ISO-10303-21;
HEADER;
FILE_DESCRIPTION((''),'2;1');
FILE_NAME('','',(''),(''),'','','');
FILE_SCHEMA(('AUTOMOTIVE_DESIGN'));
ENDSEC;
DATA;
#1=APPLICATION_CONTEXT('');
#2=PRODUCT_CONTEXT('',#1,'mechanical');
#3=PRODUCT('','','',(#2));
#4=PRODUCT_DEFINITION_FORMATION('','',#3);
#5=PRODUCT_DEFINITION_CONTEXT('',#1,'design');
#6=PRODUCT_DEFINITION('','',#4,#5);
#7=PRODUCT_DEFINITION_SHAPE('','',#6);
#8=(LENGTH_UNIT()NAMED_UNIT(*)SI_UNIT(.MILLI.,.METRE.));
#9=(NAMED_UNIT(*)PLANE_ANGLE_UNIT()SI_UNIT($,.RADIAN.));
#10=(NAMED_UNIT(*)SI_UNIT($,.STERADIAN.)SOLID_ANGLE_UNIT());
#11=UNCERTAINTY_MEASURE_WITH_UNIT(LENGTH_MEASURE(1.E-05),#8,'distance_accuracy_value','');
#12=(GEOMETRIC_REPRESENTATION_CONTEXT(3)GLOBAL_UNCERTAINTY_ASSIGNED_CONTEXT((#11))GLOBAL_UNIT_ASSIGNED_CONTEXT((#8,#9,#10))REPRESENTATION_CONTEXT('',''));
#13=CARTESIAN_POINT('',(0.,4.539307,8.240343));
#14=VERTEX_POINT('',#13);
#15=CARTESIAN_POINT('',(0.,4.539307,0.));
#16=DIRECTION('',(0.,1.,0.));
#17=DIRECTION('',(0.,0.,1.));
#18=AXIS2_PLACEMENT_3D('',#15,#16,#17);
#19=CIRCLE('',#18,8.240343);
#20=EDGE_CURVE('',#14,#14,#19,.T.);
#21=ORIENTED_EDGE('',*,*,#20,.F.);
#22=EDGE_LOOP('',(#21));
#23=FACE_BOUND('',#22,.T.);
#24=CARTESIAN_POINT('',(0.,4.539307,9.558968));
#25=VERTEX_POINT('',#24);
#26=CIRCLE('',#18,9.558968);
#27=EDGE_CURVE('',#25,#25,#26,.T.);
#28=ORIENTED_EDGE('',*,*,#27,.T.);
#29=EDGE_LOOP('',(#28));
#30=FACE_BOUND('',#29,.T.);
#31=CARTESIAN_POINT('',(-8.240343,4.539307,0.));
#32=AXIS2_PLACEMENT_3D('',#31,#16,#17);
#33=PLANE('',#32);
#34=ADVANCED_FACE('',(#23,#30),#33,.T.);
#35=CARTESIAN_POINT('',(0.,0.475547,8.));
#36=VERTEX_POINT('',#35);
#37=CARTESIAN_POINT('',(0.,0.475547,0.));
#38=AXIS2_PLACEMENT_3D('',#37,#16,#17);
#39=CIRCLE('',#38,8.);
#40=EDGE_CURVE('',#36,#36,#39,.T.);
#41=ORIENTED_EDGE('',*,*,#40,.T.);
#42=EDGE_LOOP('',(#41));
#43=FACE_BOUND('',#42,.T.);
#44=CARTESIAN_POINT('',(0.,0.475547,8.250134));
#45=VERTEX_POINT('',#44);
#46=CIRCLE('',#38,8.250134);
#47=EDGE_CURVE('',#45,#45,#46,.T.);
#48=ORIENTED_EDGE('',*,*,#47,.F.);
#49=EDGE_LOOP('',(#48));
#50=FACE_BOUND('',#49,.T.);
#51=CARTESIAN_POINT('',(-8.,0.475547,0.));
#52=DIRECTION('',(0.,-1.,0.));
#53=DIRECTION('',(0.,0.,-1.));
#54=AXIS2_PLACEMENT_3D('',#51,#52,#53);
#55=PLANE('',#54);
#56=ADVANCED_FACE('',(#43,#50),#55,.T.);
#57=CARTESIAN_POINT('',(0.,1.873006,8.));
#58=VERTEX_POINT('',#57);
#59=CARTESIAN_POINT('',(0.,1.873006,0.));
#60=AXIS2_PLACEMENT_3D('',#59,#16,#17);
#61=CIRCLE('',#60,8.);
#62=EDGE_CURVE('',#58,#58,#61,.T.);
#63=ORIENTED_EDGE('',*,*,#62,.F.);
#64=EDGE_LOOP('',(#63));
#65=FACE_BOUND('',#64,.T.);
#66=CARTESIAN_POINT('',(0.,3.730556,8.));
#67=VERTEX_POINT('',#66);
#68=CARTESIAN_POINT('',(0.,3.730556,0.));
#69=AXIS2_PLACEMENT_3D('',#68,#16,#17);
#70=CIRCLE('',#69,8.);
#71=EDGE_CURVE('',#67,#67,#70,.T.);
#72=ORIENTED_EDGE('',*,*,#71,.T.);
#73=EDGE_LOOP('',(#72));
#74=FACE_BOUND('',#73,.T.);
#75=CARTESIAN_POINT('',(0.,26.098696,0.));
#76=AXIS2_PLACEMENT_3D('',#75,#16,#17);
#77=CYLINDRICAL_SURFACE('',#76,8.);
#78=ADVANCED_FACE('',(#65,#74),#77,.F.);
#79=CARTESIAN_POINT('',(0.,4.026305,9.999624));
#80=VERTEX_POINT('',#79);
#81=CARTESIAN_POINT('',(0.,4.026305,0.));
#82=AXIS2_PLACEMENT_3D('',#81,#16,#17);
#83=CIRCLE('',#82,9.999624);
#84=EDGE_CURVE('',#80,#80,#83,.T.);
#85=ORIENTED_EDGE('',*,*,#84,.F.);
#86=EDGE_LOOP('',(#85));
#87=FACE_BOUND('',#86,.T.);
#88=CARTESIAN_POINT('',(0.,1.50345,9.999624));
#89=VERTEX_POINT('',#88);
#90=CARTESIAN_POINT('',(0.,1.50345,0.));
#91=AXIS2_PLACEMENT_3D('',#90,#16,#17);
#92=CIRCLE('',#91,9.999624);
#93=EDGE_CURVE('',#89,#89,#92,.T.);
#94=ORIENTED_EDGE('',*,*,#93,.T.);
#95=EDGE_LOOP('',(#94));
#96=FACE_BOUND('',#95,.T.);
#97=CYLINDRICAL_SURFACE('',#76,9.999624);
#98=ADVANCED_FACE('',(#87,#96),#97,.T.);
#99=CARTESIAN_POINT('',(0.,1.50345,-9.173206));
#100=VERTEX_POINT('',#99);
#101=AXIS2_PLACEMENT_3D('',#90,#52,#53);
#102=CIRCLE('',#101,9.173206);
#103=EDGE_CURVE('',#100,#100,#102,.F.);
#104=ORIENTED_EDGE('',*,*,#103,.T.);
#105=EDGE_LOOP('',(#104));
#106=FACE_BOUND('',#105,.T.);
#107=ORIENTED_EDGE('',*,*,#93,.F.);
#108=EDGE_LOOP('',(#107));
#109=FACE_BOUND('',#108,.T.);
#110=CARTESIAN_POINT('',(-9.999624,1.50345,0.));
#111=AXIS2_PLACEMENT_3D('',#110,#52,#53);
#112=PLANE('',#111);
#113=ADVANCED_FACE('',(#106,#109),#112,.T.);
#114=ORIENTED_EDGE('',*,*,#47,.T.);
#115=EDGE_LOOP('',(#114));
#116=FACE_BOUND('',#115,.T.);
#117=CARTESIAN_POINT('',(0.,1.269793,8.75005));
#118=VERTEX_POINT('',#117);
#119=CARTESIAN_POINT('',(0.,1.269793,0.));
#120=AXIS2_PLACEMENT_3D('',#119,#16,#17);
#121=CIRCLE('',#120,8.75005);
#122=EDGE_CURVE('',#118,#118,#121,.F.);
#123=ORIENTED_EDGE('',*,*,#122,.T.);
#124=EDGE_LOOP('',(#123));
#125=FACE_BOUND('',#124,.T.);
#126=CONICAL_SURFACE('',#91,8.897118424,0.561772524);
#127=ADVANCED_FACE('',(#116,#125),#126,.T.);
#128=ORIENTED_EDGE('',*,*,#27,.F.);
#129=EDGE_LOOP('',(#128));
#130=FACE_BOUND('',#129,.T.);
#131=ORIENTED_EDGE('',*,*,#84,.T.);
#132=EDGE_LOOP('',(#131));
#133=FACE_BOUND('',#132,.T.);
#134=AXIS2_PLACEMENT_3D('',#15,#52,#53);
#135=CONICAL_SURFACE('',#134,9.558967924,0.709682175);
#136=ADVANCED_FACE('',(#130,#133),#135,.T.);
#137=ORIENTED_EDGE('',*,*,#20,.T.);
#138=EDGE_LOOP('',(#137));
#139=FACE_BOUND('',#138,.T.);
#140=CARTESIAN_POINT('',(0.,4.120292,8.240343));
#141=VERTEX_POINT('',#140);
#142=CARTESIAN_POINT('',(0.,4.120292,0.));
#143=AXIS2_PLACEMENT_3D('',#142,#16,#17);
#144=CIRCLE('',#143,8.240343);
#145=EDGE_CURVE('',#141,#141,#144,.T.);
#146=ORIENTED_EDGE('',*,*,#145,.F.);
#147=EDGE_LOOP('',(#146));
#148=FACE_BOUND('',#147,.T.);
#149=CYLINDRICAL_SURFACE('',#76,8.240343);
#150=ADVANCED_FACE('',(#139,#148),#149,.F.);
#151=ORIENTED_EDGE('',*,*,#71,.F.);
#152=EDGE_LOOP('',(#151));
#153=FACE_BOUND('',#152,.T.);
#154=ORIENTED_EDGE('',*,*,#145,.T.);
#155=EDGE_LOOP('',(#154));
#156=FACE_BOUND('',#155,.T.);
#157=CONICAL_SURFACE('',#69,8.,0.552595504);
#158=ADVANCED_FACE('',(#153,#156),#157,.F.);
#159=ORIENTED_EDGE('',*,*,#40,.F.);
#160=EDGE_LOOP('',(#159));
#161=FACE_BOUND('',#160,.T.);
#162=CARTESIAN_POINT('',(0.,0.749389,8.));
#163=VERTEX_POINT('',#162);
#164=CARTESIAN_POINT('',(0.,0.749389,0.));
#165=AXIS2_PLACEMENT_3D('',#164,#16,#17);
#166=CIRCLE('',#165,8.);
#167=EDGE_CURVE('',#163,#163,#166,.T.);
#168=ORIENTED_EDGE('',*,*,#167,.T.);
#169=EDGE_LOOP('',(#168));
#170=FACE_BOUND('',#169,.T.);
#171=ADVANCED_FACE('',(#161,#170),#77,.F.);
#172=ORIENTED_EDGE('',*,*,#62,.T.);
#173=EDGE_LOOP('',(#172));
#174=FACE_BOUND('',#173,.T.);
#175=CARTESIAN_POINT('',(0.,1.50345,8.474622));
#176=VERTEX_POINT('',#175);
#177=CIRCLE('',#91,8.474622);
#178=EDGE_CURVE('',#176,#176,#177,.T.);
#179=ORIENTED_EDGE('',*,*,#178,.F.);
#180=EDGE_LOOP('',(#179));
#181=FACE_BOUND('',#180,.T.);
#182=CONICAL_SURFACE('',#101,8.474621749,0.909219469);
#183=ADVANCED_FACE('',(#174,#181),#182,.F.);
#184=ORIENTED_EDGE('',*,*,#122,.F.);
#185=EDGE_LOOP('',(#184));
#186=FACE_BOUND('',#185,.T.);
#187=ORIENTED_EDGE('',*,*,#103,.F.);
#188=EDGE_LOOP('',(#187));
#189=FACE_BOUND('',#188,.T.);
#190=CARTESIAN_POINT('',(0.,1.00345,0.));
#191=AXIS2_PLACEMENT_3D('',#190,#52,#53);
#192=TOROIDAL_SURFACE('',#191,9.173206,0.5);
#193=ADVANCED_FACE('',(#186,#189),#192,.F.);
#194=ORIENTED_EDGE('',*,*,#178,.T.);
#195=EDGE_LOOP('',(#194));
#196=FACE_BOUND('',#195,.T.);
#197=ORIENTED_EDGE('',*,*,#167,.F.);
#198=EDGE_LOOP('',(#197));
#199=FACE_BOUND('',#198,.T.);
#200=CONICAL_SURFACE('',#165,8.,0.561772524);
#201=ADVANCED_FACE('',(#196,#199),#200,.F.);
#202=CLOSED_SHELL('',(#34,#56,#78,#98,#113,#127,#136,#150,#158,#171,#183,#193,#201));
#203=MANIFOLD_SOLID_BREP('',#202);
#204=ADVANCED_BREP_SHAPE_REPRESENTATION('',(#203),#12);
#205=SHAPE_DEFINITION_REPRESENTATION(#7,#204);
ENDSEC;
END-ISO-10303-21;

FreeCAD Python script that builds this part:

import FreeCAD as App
import Part
import Sketcher
Q = App.Units.Quantity


def edges_at(feature, points):
    """Names of the edges that pass closest to the given points."""
    edges = feature.Shape.Edges
    near = lambda p: min(range(len(edges)), key=lambda i: edges[i].distToShape(Part.Vertex(*p))[0])
    return sorted({f"Edge{near(p) + 1}" for p in points})


def add_polygon(sketch, points):
    """Adds a closed chain of lines whose ends are joined by coincident constraints."""
    first, n = sketch.GeometryCount, len(points)
    for a, b in zip(points, points[1:] + points[:1]):
        sketch.addGeometry(Part.LineSegment(App.Vector(*a, 0), App.Vector(*b, 0)), False)
    for i in range(n):
        sketch.addConstraint(Sketcher.Constraint("Coincident", first + i, 2, first + (i + 1) % n, 1))

doc = App.newDocument("Part")
body = doc.addObject("PartDesign::Body", "Body")

# Sketch on XY plane
sketch1 = doc.addObject("Sketcher::SketchObject", "Sketch")
body.addObject(sketch1)
sketch1.AttachmentSupport = (doc.XY_Plane, [""])
sketch1.MapMode = "FlatFace"
add_polygon(sketch1, [(-8, 1.873006), (-8, 3.730556), (-8.240343, 4.120292), (-8.240343, 4.539307), (-9.558968, 4.539307), (-9.999624, 4.026305), (-9.999624, 1.50345), (-8.897118, 1.50345), (-8.250134, 0.475547), (-8, 0.475547), (-8, 0.749389), (-8.474622, 1.50345)])  # lines 0-11
sketch1.addConstraint([
    Sketcher.Constraint("Vertical", 0),
    Sketcher.Constraint("Vertical", 2),
    Sketcher.Constraint("Horizontal", 3),
    Sketcher.Constraint("Vertical", 5),
    Sketcher.Constraint("Horizontal", 6),
    Sketcher.Constraint("Horizontal", 8),
    Sketcher.Constraint("Vertical", 9),
    Sketcher.Constraint("Parallel", 7, 10),
    Sketcher.Constraint("Horizontal", 6, 2, 10, 2),
    Sketcher.Constraint("Vertical", 0, 2, 8, 2),
    Sketcher.Constraint("DistanceX", 0, 2, -1, 1, Q("8 mm")),
    Sketcher.Constraint("DistanceY", 0, 1, 0, 2, Q("1.85755 mm")),
    Sketcher.Constraint("Distance", 11, Q("0.60153 mm")),
    Sketcher.Constraint("DistanceX", 3, 2, 3, 1, Q("1.318625 mm")),
    Sketcher.Constraint("DistanceX", 6, 1, 6, 2, Q("1.102506 mm")),
    Sketcher.Constraint("DistanceX", 8, 1, 8, 2, Q("0.250134 mm")),
    Sketcher.Constraint("DistanceY", 2, 1, 2, 2, Q("0.419016 mm")),
    Sketcher.Constraint("DistanceY", 5, 2, 5, 1, Q("2.522856 mm")),
    Sketcher.Constraint("DistanceY", 9, 1, 9, 2, Q("0.273842 mm")),
    Sketcher.Constraint("DistanceY", -1, 1, 1, 2, Q("4.120292 mm")),
    Sketcher.Constraint("DistanceY", -1, 1, 5, 2, Q("1.50345 mm")),
    Sketcher.Constraint("DistanceX", 6, 2, -1, 1, Q("8.897118 mm")),
    Sketcher.Constraint("DistanceY", -1, 1, 9, 2, Q("0.749389 mm")),
    Sketcher.Constraint("DistanceX", 4, 2, 1, 2, Q("1.759282 mm")),
])
revolution = doc.addObject("PartDesign::Revolution", "Revolution")
body.addObject(revolution)
revolution.Profile = sketch1
revolution.ReferenceAxis = (sketch1, ["V_Axis"])
revolution.Angle = 360
doc.recompute()

fillet = doc.addObject("PartDesign::Fillet", "Fillet")
body.addObject(fillet)
fillet.Base = (revolution, edges_at(revolution, [(0, 1.503, -8.897)]))
fillet.Radius = 0.5

doc.recompute()
